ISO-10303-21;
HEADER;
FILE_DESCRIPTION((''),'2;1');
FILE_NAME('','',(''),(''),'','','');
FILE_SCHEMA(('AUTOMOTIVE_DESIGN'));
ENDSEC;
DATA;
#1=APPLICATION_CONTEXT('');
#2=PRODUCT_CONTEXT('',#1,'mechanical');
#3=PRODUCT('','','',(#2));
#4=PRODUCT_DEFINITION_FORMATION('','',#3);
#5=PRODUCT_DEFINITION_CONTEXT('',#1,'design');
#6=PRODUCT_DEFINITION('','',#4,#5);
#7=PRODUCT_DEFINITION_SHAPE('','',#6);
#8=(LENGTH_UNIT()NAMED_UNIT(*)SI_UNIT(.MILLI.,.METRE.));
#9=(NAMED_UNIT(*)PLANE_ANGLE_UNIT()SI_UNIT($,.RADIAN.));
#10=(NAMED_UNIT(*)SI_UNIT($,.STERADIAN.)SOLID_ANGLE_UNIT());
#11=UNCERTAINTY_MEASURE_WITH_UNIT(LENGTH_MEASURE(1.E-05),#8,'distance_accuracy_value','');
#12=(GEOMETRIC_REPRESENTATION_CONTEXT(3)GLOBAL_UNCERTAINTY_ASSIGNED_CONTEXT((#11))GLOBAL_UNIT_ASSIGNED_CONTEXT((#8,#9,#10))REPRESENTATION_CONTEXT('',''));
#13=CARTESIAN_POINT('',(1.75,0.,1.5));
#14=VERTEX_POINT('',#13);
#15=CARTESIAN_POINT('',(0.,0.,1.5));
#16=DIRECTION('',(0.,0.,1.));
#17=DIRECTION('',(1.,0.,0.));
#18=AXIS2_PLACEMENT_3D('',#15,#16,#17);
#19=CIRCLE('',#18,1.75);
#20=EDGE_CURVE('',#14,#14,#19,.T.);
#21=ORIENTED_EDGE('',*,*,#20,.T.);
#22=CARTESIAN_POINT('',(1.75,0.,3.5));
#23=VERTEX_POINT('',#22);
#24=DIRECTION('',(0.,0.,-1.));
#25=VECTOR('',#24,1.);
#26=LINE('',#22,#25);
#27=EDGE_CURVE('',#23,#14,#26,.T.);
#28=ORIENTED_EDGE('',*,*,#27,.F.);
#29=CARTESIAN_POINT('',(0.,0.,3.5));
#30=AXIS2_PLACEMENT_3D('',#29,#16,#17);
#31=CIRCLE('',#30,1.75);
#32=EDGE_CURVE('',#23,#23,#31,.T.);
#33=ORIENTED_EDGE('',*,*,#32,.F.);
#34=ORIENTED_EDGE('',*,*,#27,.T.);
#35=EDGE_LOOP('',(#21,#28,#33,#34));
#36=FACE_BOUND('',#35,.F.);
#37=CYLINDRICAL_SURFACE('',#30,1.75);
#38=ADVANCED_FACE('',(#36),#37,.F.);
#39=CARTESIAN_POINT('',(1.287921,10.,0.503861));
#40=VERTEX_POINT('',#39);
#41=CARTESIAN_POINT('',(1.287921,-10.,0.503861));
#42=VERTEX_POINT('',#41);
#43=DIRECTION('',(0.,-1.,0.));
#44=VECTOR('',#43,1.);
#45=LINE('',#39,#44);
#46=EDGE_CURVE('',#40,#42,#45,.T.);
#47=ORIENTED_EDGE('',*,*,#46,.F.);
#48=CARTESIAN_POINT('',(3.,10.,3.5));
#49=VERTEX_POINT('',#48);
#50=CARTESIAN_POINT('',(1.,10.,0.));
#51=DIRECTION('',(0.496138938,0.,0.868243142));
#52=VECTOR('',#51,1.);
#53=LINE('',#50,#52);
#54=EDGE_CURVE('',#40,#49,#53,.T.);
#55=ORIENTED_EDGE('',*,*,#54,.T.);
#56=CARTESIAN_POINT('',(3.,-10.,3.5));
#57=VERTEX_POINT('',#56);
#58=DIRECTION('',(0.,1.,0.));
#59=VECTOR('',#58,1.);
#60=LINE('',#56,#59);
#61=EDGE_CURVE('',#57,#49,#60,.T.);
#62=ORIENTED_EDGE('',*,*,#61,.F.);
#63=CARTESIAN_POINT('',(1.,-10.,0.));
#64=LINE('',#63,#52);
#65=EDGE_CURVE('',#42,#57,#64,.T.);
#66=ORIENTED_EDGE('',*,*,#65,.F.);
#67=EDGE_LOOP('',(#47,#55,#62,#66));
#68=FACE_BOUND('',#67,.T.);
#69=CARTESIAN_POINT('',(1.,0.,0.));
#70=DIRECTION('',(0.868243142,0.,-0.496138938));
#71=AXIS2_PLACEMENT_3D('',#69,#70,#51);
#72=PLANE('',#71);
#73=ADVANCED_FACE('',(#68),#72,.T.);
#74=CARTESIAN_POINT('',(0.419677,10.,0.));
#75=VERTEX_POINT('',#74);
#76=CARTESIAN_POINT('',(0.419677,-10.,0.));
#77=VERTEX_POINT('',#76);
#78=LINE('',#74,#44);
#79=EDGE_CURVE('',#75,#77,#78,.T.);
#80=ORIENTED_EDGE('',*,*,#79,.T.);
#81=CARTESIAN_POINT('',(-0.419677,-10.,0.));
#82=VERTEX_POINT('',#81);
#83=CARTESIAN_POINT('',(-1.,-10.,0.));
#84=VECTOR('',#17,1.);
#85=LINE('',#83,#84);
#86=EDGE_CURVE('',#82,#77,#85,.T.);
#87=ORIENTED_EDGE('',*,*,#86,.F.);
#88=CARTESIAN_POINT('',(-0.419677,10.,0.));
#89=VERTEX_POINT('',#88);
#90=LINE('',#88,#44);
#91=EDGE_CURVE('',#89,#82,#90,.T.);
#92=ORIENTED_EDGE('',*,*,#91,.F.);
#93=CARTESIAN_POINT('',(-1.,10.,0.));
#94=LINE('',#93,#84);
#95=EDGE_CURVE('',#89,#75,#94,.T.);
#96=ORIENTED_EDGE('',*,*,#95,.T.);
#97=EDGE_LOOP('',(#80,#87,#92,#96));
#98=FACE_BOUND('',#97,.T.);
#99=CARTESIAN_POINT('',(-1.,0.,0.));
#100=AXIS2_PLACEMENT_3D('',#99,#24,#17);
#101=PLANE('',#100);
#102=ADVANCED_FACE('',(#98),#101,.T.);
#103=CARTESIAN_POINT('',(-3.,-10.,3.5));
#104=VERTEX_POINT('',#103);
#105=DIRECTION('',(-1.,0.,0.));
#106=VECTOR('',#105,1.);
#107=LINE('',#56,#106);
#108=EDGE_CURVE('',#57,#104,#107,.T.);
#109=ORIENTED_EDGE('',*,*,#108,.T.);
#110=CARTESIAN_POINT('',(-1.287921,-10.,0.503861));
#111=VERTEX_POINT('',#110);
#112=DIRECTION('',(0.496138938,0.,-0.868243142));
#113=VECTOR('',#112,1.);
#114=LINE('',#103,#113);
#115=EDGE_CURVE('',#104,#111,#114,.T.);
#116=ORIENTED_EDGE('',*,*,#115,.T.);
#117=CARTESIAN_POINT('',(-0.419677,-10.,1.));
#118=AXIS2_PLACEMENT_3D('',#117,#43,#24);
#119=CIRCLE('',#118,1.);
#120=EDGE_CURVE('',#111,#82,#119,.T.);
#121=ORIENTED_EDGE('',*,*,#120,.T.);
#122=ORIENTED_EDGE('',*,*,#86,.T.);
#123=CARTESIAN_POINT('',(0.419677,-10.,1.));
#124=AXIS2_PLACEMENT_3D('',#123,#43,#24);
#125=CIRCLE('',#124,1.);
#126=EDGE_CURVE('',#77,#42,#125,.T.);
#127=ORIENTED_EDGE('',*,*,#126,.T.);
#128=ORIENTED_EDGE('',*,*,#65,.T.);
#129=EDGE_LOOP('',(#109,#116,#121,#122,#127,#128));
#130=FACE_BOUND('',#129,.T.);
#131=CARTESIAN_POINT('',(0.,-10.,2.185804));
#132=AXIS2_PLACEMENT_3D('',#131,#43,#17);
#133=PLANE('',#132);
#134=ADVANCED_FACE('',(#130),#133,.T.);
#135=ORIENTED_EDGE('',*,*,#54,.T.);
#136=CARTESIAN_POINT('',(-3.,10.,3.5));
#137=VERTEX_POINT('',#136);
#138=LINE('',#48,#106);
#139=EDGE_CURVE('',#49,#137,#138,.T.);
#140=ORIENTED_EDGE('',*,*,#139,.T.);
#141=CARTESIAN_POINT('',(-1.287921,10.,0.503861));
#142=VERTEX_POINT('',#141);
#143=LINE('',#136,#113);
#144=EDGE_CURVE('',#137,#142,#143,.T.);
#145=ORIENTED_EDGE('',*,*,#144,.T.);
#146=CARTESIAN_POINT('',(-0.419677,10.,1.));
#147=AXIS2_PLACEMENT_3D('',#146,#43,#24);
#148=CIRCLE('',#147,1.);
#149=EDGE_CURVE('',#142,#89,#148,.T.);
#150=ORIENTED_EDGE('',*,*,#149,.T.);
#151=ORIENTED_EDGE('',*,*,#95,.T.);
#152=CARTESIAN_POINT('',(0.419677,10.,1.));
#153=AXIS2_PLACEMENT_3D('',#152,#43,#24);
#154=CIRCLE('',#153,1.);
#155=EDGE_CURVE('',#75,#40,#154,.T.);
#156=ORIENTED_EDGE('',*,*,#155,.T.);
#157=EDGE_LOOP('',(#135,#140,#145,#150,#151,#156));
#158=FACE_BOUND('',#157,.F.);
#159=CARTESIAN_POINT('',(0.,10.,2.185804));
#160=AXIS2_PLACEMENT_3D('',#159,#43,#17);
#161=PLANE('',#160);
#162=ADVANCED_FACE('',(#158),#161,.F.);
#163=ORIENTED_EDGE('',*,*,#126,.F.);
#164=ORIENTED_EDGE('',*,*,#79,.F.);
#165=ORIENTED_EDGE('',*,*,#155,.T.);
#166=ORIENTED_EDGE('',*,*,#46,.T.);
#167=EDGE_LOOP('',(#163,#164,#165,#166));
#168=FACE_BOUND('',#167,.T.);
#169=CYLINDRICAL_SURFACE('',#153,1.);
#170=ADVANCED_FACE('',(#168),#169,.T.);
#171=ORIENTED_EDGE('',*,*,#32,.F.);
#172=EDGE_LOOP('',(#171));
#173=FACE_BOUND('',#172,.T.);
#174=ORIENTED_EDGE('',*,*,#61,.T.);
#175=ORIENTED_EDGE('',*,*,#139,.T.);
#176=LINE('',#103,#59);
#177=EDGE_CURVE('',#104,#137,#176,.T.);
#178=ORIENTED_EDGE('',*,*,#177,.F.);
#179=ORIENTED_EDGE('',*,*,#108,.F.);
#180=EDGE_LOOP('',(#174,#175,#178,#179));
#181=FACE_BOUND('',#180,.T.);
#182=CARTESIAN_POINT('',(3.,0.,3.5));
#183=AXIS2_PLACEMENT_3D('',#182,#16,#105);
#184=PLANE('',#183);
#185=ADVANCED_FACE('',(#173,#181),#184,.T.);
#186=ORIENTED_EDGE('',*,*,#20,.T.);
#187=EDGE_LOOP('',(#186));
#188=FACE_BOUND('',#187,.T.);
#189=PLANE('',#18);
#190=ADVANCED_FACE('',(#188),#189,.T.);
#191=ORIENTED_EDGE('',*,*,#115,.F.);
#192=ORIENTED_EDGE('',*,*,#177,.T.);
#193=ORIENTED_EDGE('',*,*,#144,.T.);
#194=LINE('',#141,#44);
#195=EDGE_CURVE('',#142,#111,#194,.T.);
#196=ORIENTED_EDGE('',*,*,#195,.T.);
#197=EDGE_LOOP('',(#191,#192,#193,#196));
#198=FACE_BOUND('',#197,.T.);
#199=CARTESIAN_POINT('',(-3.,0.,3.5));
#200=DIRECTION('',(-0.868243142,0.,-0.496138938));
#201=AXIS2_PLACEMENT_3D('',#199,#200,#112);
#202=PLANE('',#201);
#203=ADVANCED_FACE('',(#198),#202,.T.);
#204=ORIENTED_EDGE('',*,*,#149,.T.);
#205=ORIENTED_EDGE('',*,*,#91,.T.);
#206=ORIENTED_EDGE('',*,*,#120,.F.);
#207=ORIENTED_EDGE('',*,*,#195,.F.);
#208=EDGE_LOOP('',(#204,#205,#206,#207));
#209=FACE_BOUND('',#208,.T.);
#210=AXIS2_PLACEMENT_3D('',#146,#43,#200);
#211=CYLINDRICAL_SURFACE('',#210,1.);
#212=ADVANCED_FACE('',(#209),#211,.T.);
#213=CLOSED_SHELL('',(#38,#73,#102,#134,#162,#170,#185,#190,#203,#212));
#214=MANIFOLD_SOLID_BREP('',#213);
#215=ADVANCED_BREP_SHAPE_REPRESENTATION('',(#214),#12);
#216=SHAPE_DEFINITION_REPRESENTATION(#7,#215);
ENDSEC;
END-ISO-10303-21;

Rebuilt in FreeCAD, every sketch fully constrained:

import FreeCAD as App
import Part
import Sketcher
from FreeCAD import Vector
Q = App.Units.Quantity


def edges_at(feature, points):
    """Names of the edges that pass closest to the given points."""
    edges = feature.Shape.Edges
    near = lambda p: min(range(len(edges)), key=lambda i: edges[i].distToShape(Part.Vertex(*p))[0])
    return sorted({f"Edge{near(p) + 1}" for p in points})

doc = App.newDocument("Part")
params = doc.addObject("Spreadsheet::Sheet", "Params")
for row, (alias, value) in enumerate([
    ("sketch1_width", "2 mm"),
    ("sketch1_width2", "6 mm"),
    ("pad1_length", "20 mm"),
    ("sketch2_diameter", "3.5 mm"),
    ("pocket1_length", "2 mm"),
    ("fillet_radius", "1 mm"),
], start=1):
    params.set(f"A{row}", alias)
    params.set(f"B{row}", "=" + value)
    params.setAlias(f"B{row}", alias)

body = doc.addObject("PartDesign::Body", "Body")

sketch1 = body.newObject("Sketcher::SketchObject", "Sketch")
sketch1.AttachmentSupport = (doc.getObject("XZ_Plane"), [""])
sketch1.MapMode = "FlatFace"
sketch1.addGeometry([
    Part.LineSegment(Vector(-3, 3.5, 0), Vector(-1, 0, 0)),
    Part.LineSegment(Vector(-1, 0, 0), Vector(1, 0, 0)),
    Part.LineSegment(Vector(1, 0, 0), Vector(3, 3.5, 0)),
    Part.LineSegment(Vector(3, 3.5, 0), Vector(-3, 3.5, 0)),
], False)
sketch1.addConstraint([
    Sketcher.Constraint("Coincident", 0, 2, 1, 1),
    Sketcher.Constraint("Coincident", 1, 2, 2, 1),
    Sketcher.Constraint("Coincident", 2, 2, 3, 1),
    Sketcher.Constraint("Coincident", 3, 2, 0, 1),
    Sketcher.Constraint("Horizontal", 1),
    Sketcher.Constraint("Horizontal", 3),
    Sketcher.Constraint("Symmetric", 0, 2, 1, 2, -1, 1),
    Sketcher.Constraint("Equal", 0, 2),
    Sketcher.Constraint("DistanceX", 1, 1, 1, 2, Q("2 mm")),
    Sketcher.Constraint("DistanceX", 3, 2, 3, 1, Q("6 mm")),
    Sketcher.Constraint("DistanceY", -1, 1, 2, 2, Q("3.5 mm")),
])
sketch1.setExpression("Constraints[8]", "Params.sketch1_width")
sketch1.setExpression("Constraints[9]", "Params.sketch1_width2")
pad1 = body.newObject("PartDesign::Pad", "Pad")
pad1.Profile = sketch1
pad1.setExpression("Length", "Params.pad1_length")
pad1.Midplane = True

sketch2 = body.newObject("Sketcher::SketchObject", "Sketch001")
sketch2.AttachmentSupport = (doc.getObject("XY_Plane"), [""])
sketch2.MapMode = "FlatFace"
sketch2.AttachmentOffset = App.Placement(Vector(0, 0, 3.5), App.Rotation())
sketch2.addGeometry(Part.Circle(Vector(0, 0, 0), Vector(0, 0, 1), 1.8), False)
sketch2.addConstraint([
    Sketcher.Constraint("Coincident", 0, 3, -1, 1),
    Sketcher.Constraint("Diameter", 0, Q("3.5 mm")),
])
sketch2.setExpression("Constraints[1]", "Params.sketch2_diameter")
pocket1 = body.newObject("PartDesign::Pocket", "Pocket")
pocket1.Profile = sketch2
pocket1.setExpression("Length", "Params.pocket1_length")
doc.recompute()

fillet = body.newObject("PartDesign::Fillet", "Fillet")
fillet.Base = (pocket1, edges_at(pocket1, [(1, 0, 0), (-1, 0, 0)]))
fillet.setExpression("Radius", "Params.fillet_radius")

doc.recompute()
